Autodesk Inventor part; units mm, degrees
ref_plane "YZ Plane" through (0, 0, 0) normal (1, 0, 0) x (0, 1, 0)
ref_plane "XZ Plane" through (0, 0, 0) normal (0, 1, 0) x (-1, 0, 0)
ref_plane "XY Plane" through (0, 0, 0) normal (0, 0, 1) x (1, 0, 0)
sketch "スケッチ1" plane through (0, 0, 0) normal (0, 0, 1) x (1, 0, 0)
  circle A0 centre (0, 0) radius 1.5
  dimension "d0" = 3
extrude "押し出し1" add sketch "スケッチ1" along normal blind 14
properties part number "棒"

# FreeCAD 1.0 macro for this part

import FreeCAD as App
import Part
import Sketcher
from FreeCAD import Vector
Q = App.Units.Quantity

doc = App.newDocument("Part")
body = doc.addObject("PartDesign::Body", "Body")

sketch1 = body.newObject("Sketcher::SketchObject", "Sketch")
sketch1.AttachmentSupport = (doc.getObject("XY_Plane"), [""])
sketch1.MapMode = "FlatFace"
sketch1.addGeometry(Part.Circle(Vector(0, 0, 0), Vector(0, 0, 1), 1.5), False)
sketch1.addConstraint([
    Sketcher.Constraint("Coincident", 0, 3, -1, 1),
    Sketcher.Constraint("Diameter", 0, Q("3 mm")),
])
pad1 = body.newObject("PartDesign::Pad", "Pad")
pad1.Profile = sketch1
pad1.Length = 14

doc.recompute()
